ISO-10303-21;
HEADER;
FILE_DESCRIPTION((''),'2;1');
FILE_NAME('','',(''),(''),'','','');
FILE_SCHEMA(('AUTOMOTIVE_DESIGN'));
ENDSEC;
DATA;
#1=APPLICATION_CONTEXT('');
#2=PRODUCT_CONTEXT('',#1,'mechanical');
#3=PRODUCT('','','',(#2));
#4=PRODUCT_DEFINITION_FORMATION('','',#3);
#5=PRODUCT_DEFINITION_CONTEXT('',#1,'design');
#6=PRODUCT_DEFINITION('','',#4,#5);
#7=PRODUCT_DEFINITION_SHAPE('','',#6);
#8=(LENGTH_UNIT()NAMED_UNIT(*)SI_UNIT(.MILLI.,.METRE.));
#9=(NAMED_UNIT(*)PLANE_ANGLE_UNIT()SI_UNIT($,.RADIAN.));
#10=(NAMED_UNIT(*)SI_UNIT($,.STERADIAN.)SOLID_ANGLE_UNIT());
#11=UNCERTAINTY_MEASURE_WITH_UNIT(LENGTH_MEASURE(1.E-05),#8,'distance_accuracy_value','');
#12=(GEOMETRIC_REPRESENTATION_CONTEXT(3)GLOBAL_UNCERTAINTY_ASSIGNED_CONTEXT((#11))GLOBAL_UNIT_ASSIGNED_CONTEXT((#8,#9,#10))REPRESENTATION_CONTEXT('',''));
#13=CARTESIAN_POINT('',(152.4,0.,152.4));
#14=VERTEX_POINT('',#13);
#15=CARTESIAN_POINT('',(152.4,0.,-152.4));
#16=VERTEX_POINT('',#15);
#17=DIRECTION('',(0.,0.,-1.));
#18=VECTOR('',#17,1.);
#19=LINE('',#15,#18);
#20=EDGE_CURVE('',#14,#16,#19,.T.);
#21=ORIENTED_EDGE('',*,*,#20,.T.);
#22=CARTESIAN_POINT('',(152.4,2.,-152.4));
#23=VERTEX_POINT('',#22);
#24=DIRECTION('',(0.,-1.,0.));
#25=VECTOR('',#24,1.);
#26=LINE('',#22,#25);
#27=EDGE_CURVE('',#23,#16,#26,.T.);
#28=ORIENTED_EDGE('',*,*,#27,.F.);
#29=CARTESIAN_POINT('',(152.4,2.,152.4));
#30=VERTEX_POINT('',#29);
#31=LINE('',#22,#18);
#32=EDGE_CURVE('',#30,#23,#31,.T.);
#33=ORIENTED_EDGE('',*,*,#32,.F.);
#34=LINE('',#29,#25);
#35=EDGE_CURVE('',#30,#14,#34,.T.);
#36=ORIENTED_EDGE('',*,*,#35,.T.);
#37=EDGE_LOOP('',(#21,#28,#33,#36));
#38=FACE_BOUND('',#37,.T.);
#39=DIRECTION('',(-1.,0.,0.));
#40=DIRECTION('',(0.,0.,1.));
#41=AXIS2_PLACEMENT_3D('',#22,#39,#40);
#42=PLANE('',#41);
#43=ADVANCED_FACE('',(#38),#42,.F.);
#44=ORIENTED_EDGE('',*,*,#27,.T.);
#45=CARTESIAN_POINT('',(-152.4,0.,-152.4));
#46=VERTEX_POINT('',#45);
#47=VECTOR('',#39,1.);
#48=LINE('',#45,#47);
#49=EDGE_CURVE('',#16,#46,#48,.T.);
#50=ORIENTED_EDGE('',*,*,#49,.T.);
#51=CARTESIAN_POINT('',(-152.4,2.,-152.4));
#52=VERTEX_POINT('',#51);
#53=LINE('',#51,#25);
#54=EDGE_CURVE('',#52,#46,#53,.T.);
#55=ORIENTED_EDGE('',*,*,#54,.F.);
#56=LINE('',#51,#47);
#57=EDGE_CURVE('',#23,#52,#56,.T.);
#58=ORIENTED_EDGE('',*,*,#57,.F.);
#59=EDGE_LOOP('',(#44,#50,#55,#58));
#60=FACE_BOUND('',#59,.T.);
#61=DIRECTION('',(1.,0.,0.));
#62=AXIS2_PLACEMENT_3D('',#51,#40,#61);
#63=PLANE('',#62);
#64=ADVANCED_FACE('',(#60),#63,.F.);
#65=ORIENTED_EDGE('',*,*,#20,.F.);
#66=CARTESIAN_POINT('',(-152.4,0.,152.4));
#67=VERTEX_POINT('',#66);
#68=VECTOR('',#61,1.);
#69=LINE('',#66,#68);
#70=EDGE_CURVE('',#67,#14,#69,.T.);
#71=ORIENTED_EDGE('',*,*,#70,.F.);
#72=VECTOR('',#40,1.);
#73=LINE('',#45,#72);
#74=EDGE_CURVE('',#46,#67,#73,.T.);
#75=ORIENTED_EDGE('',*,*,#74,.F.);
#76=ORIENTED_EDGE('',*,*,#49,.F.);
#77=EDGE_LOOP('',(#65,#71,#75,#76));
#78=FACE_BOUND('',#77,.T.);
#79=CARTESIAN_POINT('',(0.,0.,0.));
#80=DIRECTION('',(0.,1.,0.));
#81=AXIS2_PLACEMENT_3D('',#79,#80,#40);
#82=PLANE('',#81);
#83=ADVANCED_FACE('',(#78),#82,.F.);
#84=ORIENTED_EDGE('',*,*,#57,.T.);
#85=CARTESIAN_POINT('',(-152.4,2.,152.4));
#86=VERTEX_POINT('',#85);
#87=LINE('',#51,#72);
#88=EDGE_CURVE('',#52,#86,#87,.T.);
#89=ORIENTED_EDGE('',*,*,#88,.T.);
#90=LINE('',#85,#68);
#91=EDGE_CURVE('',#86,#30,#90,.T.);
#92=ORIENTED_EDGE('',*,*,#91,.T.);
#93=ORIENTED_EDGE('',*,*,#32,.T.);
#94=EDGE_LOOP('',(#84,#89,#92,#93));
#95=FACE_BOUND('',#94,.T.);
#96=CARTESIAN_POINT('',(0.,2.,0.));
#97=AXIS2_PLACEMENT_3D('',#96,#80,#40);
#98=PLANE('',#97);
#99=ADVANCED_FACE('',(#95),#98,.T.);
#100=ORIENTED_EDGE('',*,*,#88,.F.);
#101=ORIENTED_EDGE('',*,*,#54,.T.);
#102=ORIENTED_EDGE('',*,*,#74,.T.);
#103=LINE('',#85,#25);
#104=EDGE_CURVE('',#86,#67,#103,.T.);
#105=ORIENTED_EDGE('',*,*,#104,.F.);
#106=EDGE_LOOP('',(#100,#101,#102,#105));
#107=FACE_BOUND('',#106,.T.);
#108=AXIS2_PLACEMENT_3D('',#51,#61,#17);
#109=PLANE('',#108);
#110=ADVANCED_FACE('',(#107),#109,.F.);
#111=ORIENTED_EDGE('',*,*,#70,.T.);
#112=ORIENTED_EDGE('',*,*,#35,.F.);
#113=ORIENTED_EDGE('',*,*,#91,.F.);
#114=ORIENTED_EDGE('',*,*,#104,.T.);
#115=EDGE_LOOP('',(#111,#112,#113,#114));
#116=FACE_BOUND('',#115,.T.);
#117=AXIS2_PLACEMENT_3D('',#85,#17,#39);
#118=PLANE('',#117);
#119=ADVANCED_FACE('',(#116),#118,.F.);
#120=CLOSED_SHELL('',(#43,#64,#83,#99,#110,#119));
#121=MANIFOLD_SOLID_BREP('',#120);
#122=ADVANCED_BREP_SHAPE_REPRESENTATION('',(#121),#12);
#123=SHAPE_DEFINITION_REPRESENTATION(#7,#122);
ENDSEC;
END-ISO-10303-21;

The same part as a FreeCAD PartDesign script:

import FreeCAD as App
import Part
import Sketcher
from FreeCAD import Vector
Q = App.Units.Quantity


def add_polygon(sketch, points):
    """Adds a closed chain of lines whose ends are joined by coincident constraints."""
    first, n = sketch.GeometryCount, len(points)
    for a, b in zip(points, points[1:] + points[:1]):
        sketch.addGeometry(Part.LineSegment(App.Vector(*a, 0), App.Vector(*b, 0)), False)
    for i in range(n):
        sketch.addConstraint(Sketcher.Constraint("Coincident", first + i, 2, first + (i + 1) % n, 1))

doc = App.newDocument("Part")
body = doc.addObject("PartDesign::Body", "Body")

sketch1 = doc.addObject("Sketcher::SketchObject", "Sketch")
body.addObject(sketch1)
sketch1.AttachmentSupport = (doc.XZ_Plane, [""])
sketch1.MapMode = "FlatFace"
add_polygon(sketch1, [(-152, -152), (-152, 152), (152, 152), (152, -152)])
sketch1.addConstraint([
    Sketcher.Constraint("Vertical", 0),
    Sketcher.Constraint("Horizontal", 1),
    Sketcher.Constraint("Vertical", 2),
    Sketcher.Constraint("Horizontal", 3),
    Sketcher.Constraint("Symmetric", 0, 2, 2, 2, -1, 1),
    Sketcher.Constraint("Equal", 3, 0),
    Sketcher.Constraint("DistanceX", 1, 1, 1, 2, Q("304.8 mm")),
])
pad1 = doc.addObject("PartDesign::Pad", "Pad")
body.addObject(pad1)
pad1.Profile = sketch1
pad1.Length = 2
pad1.Reversed = True

doc.recompute()
